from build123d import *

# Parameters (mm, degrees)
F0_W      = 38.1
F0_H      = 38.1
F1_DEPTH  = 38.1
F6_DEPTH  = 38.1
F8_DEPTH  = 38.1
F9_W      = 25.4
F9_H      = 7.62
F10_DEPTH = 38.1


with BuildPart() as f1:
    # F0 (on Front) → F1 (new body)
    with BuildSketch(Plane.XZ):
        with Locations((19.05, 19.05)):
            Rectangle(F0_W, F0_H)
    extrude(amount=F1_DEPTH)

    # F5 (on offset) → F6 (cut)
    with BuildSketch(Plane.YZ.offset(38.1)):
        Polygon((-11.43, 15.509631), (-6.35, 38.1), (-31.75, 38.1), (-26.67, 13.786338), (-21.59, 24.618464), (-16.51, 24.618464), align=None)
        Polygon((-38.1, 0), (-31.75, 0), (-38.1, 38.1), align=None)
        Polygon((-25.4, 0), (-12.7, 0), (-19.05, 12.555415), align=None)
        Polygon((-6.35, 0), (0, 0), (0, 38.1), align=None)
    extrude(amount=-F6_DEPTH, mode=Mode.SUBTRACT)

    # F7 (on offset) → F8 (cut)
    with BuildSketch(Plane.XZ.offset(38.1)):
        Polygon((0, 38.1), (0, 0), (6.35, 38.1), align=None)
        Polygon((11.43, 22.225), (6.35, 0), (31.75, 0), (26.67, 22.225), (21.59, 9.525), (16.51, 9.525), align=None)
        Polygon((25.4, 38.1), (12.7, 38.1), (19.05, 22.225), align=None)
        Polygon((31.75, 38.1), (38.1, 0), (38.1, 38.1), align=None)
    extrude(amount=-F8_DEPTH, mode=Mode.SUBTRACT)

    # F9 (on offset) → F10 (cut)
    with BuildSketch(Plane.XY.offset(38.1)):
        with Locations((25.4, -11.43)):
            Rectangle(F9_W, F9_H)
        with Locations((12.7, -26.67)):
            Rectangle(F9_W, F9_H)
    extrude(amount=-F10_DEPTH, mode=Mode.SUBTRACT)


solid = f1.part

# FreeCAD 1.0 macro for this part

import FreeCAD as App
import Part
import Sketcher
from FreeCAD import Vector
Q = App.Units.Quantity

doc = App.newDocument("Part")
body = doc.addObject("PartDesign::Body", "Body")

# Sketch on XZ plane
sketch1 = body.newObject("Sketcher::SketchObject", "Sketch")
sketch1.AttachmentSupport = (doc.getObject("XZ_Plane"), [""])
sketch1.MapMode = "FlatFace"
sketch1.addGeometry(Part.LineSegment(Vector(0, 38.1, 0), Vector(0, 0, 0)), False)
sketch1.addGeometry(Part.LineSegment(Vector(0, 0, 0), Vector(38.1, 0, 0)), False)
sketch1.addGeometry(Part.LineSegment(Vector(38.1, 0, 0), Vector(38.1, 38.1, 0)), False)
sketch1.addGeometry(Part.LineSegment(Vector(38.1, 38.1, 0), Vector(0, 38.1, 0)), False)
sketch1.addConstraint(Sketcher.Constraint("Coincident", 0, 2, 1, 1))
sketch1.addConstraint(Sketcher.Constraint("Coincident", 1, 2, 2, 1))
sketch1.addConstraint(Sketcher.Constraint("Coincident", 2, 2, 3, 1))
sketch1.addConstraint(Sketcher.Constraint("Coincident", 3, 2, 0, 1))
sketch1.addConstraint(Sketcher.Constraint("Vertical", 0))
sketch1.addConstraint(Sketcher.Constraint("Horizontal", 1))
sketch1.addConstraint(Sketcher.Constraint("Vertical", 2))
sketch1.addConstraint(Sketcher.Constraint("Horizontal", 3))
sketch1.addConstraint(Sketcher.Constraint("Coincident", 0, 2, -1, 1))
sketch1.addConstraint(Sketcher.Constraint("Equal", 3, 0))
sketch1.addConstraint(Sketcher.Constraint("DistanceX", 1, 1, 1, 2, Q("1.5 in")))
pad1 = body.newObject("PartDesign::Pad", "Pad")
pad1.Profile = sketch1
pad1.Length = Q("1.5 in")

# Sketch on YZ plane
sketch2 = body.newObject("Sketcher::SketchObject", "Sketch001")
sketch2.AttachmentSupport = (doc.getObject("YZ_Plane"), [""])
sketch2.MapMode = "FlatFace"
sketch2.AttachmentOffset = App.Placement(Vector(0, 0, 1.5 * 25.4), App.Rotation())
sketch2.addGeometry(Part.LineSegment(Vector(-11.43, 15.509631, 0), Vector(-6.35, 38.1, 0)), False)
sketch2.addGeometry(Part.LineSegment(Vector(-6.35, 38.1, 0), Vector(-31.75, 38.1, 0)), False)
sketch2.addGeometry(Part.LineSegment(Vector(-31.75, 38.1, 0), Vector(-26.67, 13.786338, 0)), False)
sketch2.addGeometry(Part.LineSegment(Vector(-26.67, 13.786338, 0), Vector(-21.59, 24.618464, 0)), False)
sketch2.addGeometry(Part.LineSegment(Vector(-21.59, 24.618464, 0), Vector(-16.51, 24.618464, 0)), False)
sketch2.addGeometry(Part.LineSegment(Vector(-16.51, 24.618464, 0), Vector(-11.43, 15.509631, 0)), False)
sketch2.addGeometry(Part.LineSegment(Vector(-38.1, 0, 0), Vector(-31.75, 0, 0)), False)
sketch2.addGeometry(Part.LineSegment(Vector(-31.75, 0, 0), Vector(-38.1, 38.1, 0)), False)
sketch2.addGeometry(Part.LineSegment(Vector(-38.1, 38.1, 0), Vector(-38.1, 0, 0)), False)
sketch2.addGeometry(Part.LineSegment(Vector(-25.4, 0, 0), Vector(-12.7, 0, 0)), False)
sketch2.addGeometry(Part.LineSegment(Vector(-12.7, 0, 0), Vector(-19.05, 12.555415, 0)), False)
sketch2.addGeometry(Part.LineSegment(Vector(-19.05, 12.555415, 0), Vector(-25.4, 0, 0)), False)
sketch2.addGeometry(Part.LineSegment(Vector(-6.35, 0, 0), Vector(0, 0, 0)), False)
sketch2.addGeometry(Part.LineSegment(Vector(0, 0, 0), Vector(0, 38.1, 0)), False)
sketch2.addGeometry(Part.LineSegment(Vector(0, 38.1, 0), Vector(-6.35, 0, 0)), False)
sketch2.addConstraint(Sketcher.Constraint("Coincident", 0, 2, 1, 1))
sketch2.addConstraint(Sketcher.Constraint("Coincident", 1, 2, 2, 1))
sketch2.addConstraint(Sketcher.Constraint("Coincident", 2, 2, 3, 1))
sketch2.addConstraint(Sketcher.Constraint("Coincident", 3, 2, 4, 1))
sketch2.addConstraint(Sketcher.Constraint("Coincident", 4, 2, 5, 1))
sketch2.addConstraint(Sketcher.Constraint("Coincident", 5, 2, 0, 1))
sketch2.addConstraint(Sketcher.Constraint("Coincident", 6, 2, 7, 1))
sketch2.addConstraint(Sketcher.Constraint("Coincident", 7, 2, 8, 1))
sketch2.addConstraint(Sketcher.Constraint("Coincident", 8, 2, 6, 1))
sketch2.addConstraint(Sketcher.Constraint("Coincident", 9, 2, 10, 1))
sketch2.addConstraint(Sketcher.Constraint("Coincident", 10, 2, 11, 1))
sketch2.addConstraint(Sketcher.Constraint("Coincident", 11, 2, 9, 1))
sketch2.addConstraint(Sketcher.Constraint("Coincident", 12, 2, 13, 1))
sketch2.addConstraint(Sketcher.Constraint("Coincident", 13, 2, 14, 1))
sketch2.addConstraint(Sketcher.Constraint("Coincident", 14, 2, 12, 1))
sketch2.addConstraint(Sketcher.Constraint("Horizontal", 1))
sketch2.addConstraint(Sketcher.Constraint("Horizontal", 4))
sketch2.addConstraint(Sketcher.Constraint("Horizontal", 6))
sketch2.addConstraint(Sketcher.Constraint("Vertical", 8))
sketch2.addConstraint(Sketcher.Constraint("Horizontal", 9))
sketch2.addConstraint(Sketcher.Constraint("Horizontal", 12))
sketch2.addConstraint(Sketcher.Constraint("Vertical", 13))
sketch2.addConstraint(Sketcher.Constraint("Coincident", 12, 2, -1, 1))
sketch2.addConstraint(Sketcher.Constraint("PointOnObject", 6, 2, -1))
sketch2.addConstraint(Sketcher.Constraint("PointOnObject", 9, 2, -1))
sketch2.addConstraint(Sketcher.Constraint("Horizontal", 1, 2, 7, 2))
sketch2.addConstraint(Sketcher.Constraint("Horizontal", 7, 2, 13, 2))
sketch2.addConstraint(Sketcher.Constraint("Vertical", 1, 2, 6, 2))
sketch2.addConstraint(Sketcher.Constraint("Vertical", 0, 2, 14, 2))
sketch2.addConstraint(Sketcher.Constraint("Equal", 6, 12))
sketch2.addConstraint(Sketcher.Constraint("Equal", 10, 11))
sketch2.addConstraint(Sketcher.Constraint("DistanceX", 1, 2, 1, 1, Q("1 in")))
sketch2.addConstraint(Sketcher.Constraint("DistanceX", 4, 1, 4, 2, Q("0.2 in")))
sketch2.addConstraint(Sketcher.Constraint("DistanceX", 9, 1, 9, 2, Q("0.5 in")))
sketch2.addConstraint(Sketcher.Constraint("DistanceY", 8, 2, 8, 1, Q("1.5 in")))
sketch2.addConstraint(Sketcher.Constraint("DistanceX", 11, 2, -1, 1, Q("1 in")))
sketch2.addConstraint(Sketcher.Constraint("DistanceX", 8, 2, 9, 2, Q("1 in")))
sketch2.addConstraint(Sketcher.Constraint("DistanceX", 1, 2, 2, 2, Q("0.2 in")))
sketch2.addConstraint(Sketcher.Constraint("DistanceX", 2, 2, 3, 2, Q("0.2 in")))
sketch2.addConstraint(Sketcher.Constraint("DistanceX", 4, 2, 5, 2, Q("0.2 in")))
sketch2.addConstraint(Sketcher.Constraint("Distance", 2, 24.838691))
sketch2.addConstraint(Sketcher.Constraint("Distance", 3, 11.96417))
sketch2.addConstraint(Sketcher.Constraint("Distance", 10, 14.069859))
sketch2.addConstraint(Sketcher.Constraint("DistanceY", -1, 1, 5, 2, 15.509631))
pocket1 = body.newObject("PartDesign::Pocket", "Pocket")
pocket1.Profile = sketch2
pocket1.Length = Q("1.5 in")

# Sketch on XZ plane
sketch3 = body.newObject("Sketcher::SketchObject", "Sketch002")
sketch3.AttachmentSupport = (doc.getObject("XZ_Plane"), [""])
sketch3.MapMode = "FlatFace"
sketch3.AttachmentOffset = App.Placement(Vector(0, 0, 1.5 * 25.4), App.Rotation())
sketch3.addGeometry(Part.LineSegment(Vector(0, 38.1, 0), Vector(0, 0, 0)), False)
sketch3.addGeometry(Part.LineSegment(Vector(0, 0, 0), Vector(6.35, 38.1, 0)), False)
sketch3.addGeometry(Part.LineSegment(Vector(6.35, 38.1, 0), Vector(0, 38.1, 0)), False)
sketch3.addGeometry(Part.LineSegment(Vector(11.43, 22.225, 0), Vector(6.35, 0, 0)), False)
sketch3.addGeometry(Part.LineSegment(Vector(6.35, 0, 0), Vector(31.75, 0, 0)), False)
sketch3.addGeometry(Part.LineSegment(Vector(31.75, 0, 0), Vector(26.67, 22.225, 0)), False)
sketch3.addGeometry(Part.LineSegment(Vector(26.67, 22.225, 0), Vector(21.59, 9.525, 0)), False)
sketch3.addGeometry(Part.LineSegment(Vector(21.59, 9.525, 0), Vector(16.51, 9.525, 0)), False)
sketch3.addGeometry(Part.LineSegment(Vector(16.51, 9.525, 0), Vector(11.43, 22.225, 0)), False)
sketch3.addGeometry(Part.LineSegment(Vector(25.4, 38.1, 0), Vector(12.7, 38.1, 0)), False)
sketch3.addGeometry(Part.LineSegment(Vector(12.7, 38.1, 0), Vector(19.05, 22.225, 0)), False)
sketch3.addGeometry(Part.LineSegment(Vector(19.05, 22.225, 0), Vector(25.4, 38.1, 0)), False)
sketch3.addGeometry(Part.LineSegment(Vector(31.75, 38.1, 0), Vector(38.1, 0, 0)), False)
sketch3.addGeometry(Part.LineSegment(Vector(38.1, 0, 0), Vector(38.1, 38.1, 0)), False)
sketch3.addGeometry(Part.LineSegment(Vector(38.1, 38.1, 0), Vector(31.75, 38.1, 0)), False)
sketch3.addConstraint(Sketcher.Constraint("Coincident", 0, 2, 1, 1))
sketch3.addConstraint(Sketcher.Constraint("Coincident", 1, 2, 2, 1))
sketch3.addConstraint(Sketcher.Constraint("Coincident", 2, 2, 0, 1))
sketch3.addConstraint(Sketcher.Constraint("Coincident", 3, 2, 4, 1))
sketch3.addConstraint(Sketcher.Constraint("Coincident", 4, 2, 5, 1))
sketch3.addConstraint(Sketcher.Constraint("Coincident", 5, 2, 6, 1))
sketch3.addConstraint(Sketcher.Constraint("Coincident", 6, 2, 7, 1))
sketch3.addConstraint(Sketcher.Constraint("Coincident", 7, 2, 8, 1))
sketch3.addConstraint(Sketcher.Constraint("Coincident", 8, 2, 3, 1))
sketch3.addConstraint(Sketcher.Constraint("Coincident", 9, 2, 10, 1))
sketch3.addConstraint(Sketcher.Constraint("Coincident", 10, 2, 11, 1))
sketch3.addConstraint(Sketcher.Constraint("Coincident", 11, 2, 9, 1))
sketch3.addConstraint(Sketcher.Constraint("Coincident", 12, 2, 13, 1))
sketch3.addConstraint(Sketcher.Constraint("Coincident", 13, 2, 14, 1))
sketch3.addConstraint(Sketcher.Constraint("Coincident", 14, 2, 12, 1))
sketch3.addConstraint(Sketcher.Constraint("Vertical", 0))
sketch3.addConstraint(Sketcher.Constraint("Horizontal", 2))
sketch3.addConstraint(Sketcher.Constraint("Horizontal", 4))
sketch3.addConstraint(Sketcher.Constraint("Horizontal", 7))
sketch3.addConstraint(Sketcher.Constraint("Horizontal", 9))
sketch3.addConstraint(Sketcher.Constraint("Vertical", 13))
sketch3.addConstraint(Sketcher.Constraint("Horizontal", 14))
sketch3.addConstraint(Sketcher.Constraint("Coincident", 0, 2, -1, 1))
sketch3.addConstraint(Sketcher.Constraint("PointOnObject", 3, 2, -1))
sketch3.addConstraint(Sketcher.Constraint("PointOnObject", 12, 2, -1))
sketch3.addConstraint(Sketcher.Constraint("Parallel", 8, 10))
sketch3.addConstraint(Sketcher.Constraint("Parallel", 6, 11))
sketch3.addConstraint(Sketcher.Constraint("Horizontal", 5, 2, 8, 2))
sketch3.addConstraint(Sketcher.Constraint("Horizontal", 2, 2, 9, 2))
sketch3.addConstraint(Sketcher.Constraint("Horizontal", 8, 2, 10, 2))
sketch3.addConstraint(Sketcher.Constraint("Horizontal", 11, 2, 13, 2))
sketch3.addConstraint(Sketcher.Constraint("Vertical", 1, 2, 3, 2))
sketch3.addConstraint(Sketcher.Constraint("Vertical", 4, 2, 14, 2))
sketch3.addConstraint(Sketcher.Constraint("Equal", 2, 14))
sketch3.addConstraint(Sketcher.Constraint("Equal", 3, 5))
sketch3.addConstraint(Sketcher.Constraint("Equal", 6, 8))
sketch3.addConstraint(Sketcher.Constraint("DistanceX", 4, 1, 4, 2, Q("1 in")))
sketch3.addConstraint(Sketcher.Constraint("DistanceX", 7, 2, 7, 1, Q("0.2 in")))
sketch3.addConstraint(Sketcher.Constraint("DistanceX", 9, 2, 9, 1, Q("0.5 in")))
sketch3.addConstraint(Sketcher.Constraint("DistanceY", 0, 2, 0, 1, Q("1.5 in")))
sketch3.addConstraint(Sketcher.Constraint("DistanceX", -1, 1, 11, 2, Q("1 in")))
sketch3.addConstraint(Sketcher.Constraint("DistanceX", 9, 2, 13, 2, Q("1 in")))
sketch3.addConstraint(Sketcher.Constraint("DistanceX", 5, 2, 4, 2, Q("0.2 in")))
sketch3.addConstraint(Sketcher.Constraint("DistanceY", 6, 2, 5, 2, Q("0.5 in")))
pocket2 = body.newObject("PartDesign::Pocket", "Pocket001")
pocket2.Profile = sketch3
pocket2.Length = Q("1.5 in")

# Sketch on XY plane
sketch4 = body.newObject("Sketcher::SketchObject", "Sketch003")
sketch4.AttachmentSupport = (doc.getObject("XY_Plane"), [""])
sketch4.MapMode = "FlatFace"
sketch4.AttachmentOffset = App.Placement(Vector(0, 0, 1.5 * 25.4), App.Rotation())
sketch4.addGeometry(Part.LineSegment(Vector(12.7, -7.62, 0), Vector(12.7, -15.24, 0)), False)
sketch4.addGeometry(Part.LineSegment(Vector(12.7, -15.24, 0), Vector(38.1, -15.24, 0)), False)
sketch4.addGeometry(Part.LineSegment(Vector(38.1, -15.24, 0), Vector(38.1, -7.62, 0)), False)
sketch4.addGeometry(Part.LineSegment(Vector(38.1, -7.62, 0), Vector(12.7, -7.62, 0)), False)
sketch4.addGeometry(Part.LineSegment(Vector(0, -22.86, 0), Vector(0, -30.48, 0)), False)
sketch4.addGeometry(Part.LineSegment(Vector(0, -30.48, 0), Vector(25.4, -30.48, 0)), False)
sketch4.addGeometry(Part.LineSegment(Vector(25.4, -30.48, 0), Vector(25.4, -22.86, 0)), False)
sketch4.addGeometry(Part.LineSegment(Vector(25.4, -22.86, 0), Vector(0, -22.86, 0)), False)
sketch4.addConstraint(Sketcher.Constraint("Coincident", 0, 2, 1, 1))
sketch4.addConstraint(Sketcher.Constraint("Coincident", 1, 2, 2, 1))
sketch4.addConstraint(Sketcher.Constraint("Coincident", 2, 2, 3, 1))
sketch4.addConstraint(Sketcher.Constraint("Coincident", 3, 2, 0, 1))
sketch4.addConstraint(Sketcher.Constraint("Coincident", 4, 2, 5, 1))
sketch4.addConstraint(Sketcher.Constraint("Coincident", 5, 2, 6, 1))
sketch4.addConstraint(Sketcher.Constraint("Coincident", 6, 2, 7, 1))
sketch4.addConstraint(Sketcher.Constraint("Coincident", 7, 2, 4, 1))
sketch4.addConstraint(Sketcher.Constraint("Vertical", 0))
sketch4.addConstraint(Sketcher.Constraint("Horizontal", 1))
sketch4.addConstraint(Sketcher.Constraint("Vertical", 2))
sketch4.addConstraint(Sketcher.Constraint("Horizontal", 3))
sketch4.addConstraint(Sketcher.Constraint("Vertical", 4))
sketch4.addConstraint(Sketcher.Constraint("Horizontal", 5))
sketch4.addConstraint(Sketcher.Constraint("Vertical", 6))
sketch4.addConstraint(Sketcher.Constraint("Horizontal", 7))
sketch4.addConstraint(Sketcher.Constraint("PointOnObject", 4, 2, -2))
sketch4.addConstraint(Sketcher.Constraint("Equal", 3, 5))
sketch4.addConstraint(Sketcher.Constraint("Equal", 2, 4))
sketch4.addConstraint(Sketcher.Constraint("DistanceX", 1, 1, 1, 2, Q("1 in")))
sketch4.addConstraint(Sketcher.Constraint("DistanceY", 0, 2, 0, 1, Q("0.3 in")))
sketch4.addConstraint(Sketcher.Constraint("DistanceX", -1, 1, 0, 2, Q("0.5 in")))
sketch4.addConstraint(Sketcher.Constraint("DistanceY", 0, 2, -1, 1, Q("0.6 in")))
sketch4.addConstraint(Sketcher.Constraint("DistanceY", 4, 2, -1, 1, Q("1.2 in")))
pocket3 = body.newObject("PartDesign::Pocket", "Pocket002")
pocket3.Profile = sketch4
pocket3.Length = Q("1.5 in")

doc.recompute()
